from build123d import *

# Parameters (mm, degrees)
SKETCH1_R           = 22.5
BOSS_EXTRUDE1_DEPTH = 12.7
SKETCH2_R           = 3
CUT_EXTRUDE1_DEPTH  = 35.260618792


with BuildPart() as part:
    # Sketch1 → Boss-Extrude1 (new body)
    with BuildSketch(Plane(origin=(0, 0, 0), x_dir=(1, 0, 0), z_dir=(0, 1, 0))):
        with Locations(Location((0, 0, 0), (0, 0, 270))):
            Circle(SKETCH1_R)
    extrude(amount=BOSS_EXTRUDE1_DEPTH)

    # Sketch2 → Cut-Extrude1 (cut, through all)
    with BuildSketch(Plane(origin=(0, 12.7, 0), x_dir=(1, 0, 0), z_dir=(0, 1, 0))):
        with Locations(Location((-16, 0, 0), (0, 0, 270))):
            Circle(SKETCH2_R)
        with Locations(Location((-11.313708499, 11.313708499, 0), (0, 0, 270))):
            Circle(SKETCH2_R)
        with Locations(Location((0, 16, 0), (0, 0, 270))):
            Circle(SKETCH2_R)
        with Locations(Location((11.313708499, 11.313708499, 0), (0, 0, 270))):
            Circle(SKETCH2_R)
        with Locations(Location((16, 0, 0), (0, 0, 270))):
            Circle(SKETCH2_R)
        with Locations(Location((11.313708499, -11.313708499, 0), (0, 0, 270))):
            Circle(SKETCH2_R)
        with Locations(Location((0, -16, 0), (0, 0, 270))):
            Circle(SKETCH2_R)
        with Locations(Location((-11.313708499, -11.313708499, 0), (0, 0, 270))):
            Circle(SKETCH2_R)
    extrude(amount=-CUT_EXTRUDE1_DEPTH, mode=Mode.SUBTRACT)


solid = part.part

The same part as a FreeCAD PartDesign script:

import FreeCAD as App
import Part
import Sketcher
Q = App.Units.Quantity

doc = App.newDocument("Part")
body = doc.addObject("PartDesign::Body", "Body")

# Sketch on XZ plane
sketch1 = doc.addObject("Sketcher::SketchObject", "Sketch")
body.addObject(sketch1)
sketch1.AttachmentSupport = (doc.XZ_Plane, [""])
sketch1.MapMode = "FlatFace"
sketch1.addGeometry(Part.Circle(App.Vector(0, 0, 0), App.Vector(0, 0, 1), 22.5), False)
sketch1.addConstraint([
    Sketcher.Constraint("Coincident", 0, 3, -1, 1),
    Sketcher.Constraint("Diameter", 0, Q("45 mm")),
])
pad1 = doc.addObject("PartDesign::Pad", "Pad")
body.addObject(pad1)
pad1.Profile = sketch1
pad1.Length = 12.7
pad1.Reversed = True

# Sketch on XZ plane
sketch2 = doc.addObject("Sketcher::SketchObject", "Sketch001")
body.addObject(sketch2)
sketch2.AttachmentSupport = (doc.XZ_Plane, [""])
sketch2.MapMode = "FlatFace"
sketch2.AttachmentOffset = App.Placement(App.Vector(0, 0, -12.7), App.Rotation())
sketch2.addGeometry([
    Part.Circle(App.Vector(-16, 0, 0), App.Vector(0, 0, 1), 3),  # 0
    Part.Circle(App.Vector(-11.313708, -11.313708, 0), App.Vector(0, 0, 1), 3),  # 1
    Part.Circle(App.Vector(0, -16, 0), App.Vector(0, 0, 1), 3),  # 2
    Part.Circle(App.Vector(11.313708, -11.313708, 0), App.Vector(0, 0, 1), 3),  # 3
    Part.Circle(App.Vector(16, 0, 0), App.Vector(0, 0, 1), 3),  # 4
    Part.Circle(App.Vector(11.313708, 11.313708, 0), App.Vector(0, 0, 1), 3),  # 5
    Part.Circle(App.Vector(0, 16, 0), App.Vector(0, 0, 1), 3),  # 6
    Part.Circle(App.Vector(-11.313708, 11.313708, 0), App.Vector(0, 0, 1), 3),  # 7
], False)
sketch2.addConstraint([
    Sketcher.Constraint("Equal", 0, 1),
    Sketcher.Constraint("Equal", 1, 2),
    Sketcher.Constraint("Equal", 2, 3),
    Sketcher.Constraint("Equal", 3, 4),
    Sketcher.Constraint("Equal", 4, 5),
    Sketcher.Constraint("Equal", 5, 6),
    Sketcher.Constraint("Equal", 6, 7),
    Sketcher.Constraint("Symmetric", 0, 3, 4, 3, -1, 1),
    Sketcher.Constraint("Symmetric", 1, 3, 5, 3, -1, 1),
    Sketcher.Constraint("Symmetric", 2, 3, 6, 3, -1, 1),
    Sketcher.Constraint("Symmetric", 3, 3, 7, 3, -1, 1),
    Sketcher.Constraint("Symmetric", 1, 3, 3, 3, -2),
    Sketcher.Constraint("PointOnObject", 0, 3, -1),
    Sketcher.Constraint("PointOnObject", 2, 3, -2),
    Sketcher.Constraint("Diameter", 0, Q("6 mm")),
    Sketcher.Constraint("DistanceX", 0, 3, -1, 1, Q("16 mm")),
    Sketcher.Constraint("DistanceY", 2, 3, -1, 1, Q("16 mm")),
    Sketcher.Constraint("DistanceX", 1, 3, -1, 1, Q("11.313708 mm")),
    Sketcher.Constraint("DistanceY", 1, 3, -1, 1, Q("11.313708 mm")),
])
pocket1 = doc.addObject("PartDesign::Pocket", "Pocket")
body.addObject(pocket1)
pocket1.Profile = sketch2
pocket1.Type = "ThroughAll"
pocket1.Reversed = True

doc.recompute()
